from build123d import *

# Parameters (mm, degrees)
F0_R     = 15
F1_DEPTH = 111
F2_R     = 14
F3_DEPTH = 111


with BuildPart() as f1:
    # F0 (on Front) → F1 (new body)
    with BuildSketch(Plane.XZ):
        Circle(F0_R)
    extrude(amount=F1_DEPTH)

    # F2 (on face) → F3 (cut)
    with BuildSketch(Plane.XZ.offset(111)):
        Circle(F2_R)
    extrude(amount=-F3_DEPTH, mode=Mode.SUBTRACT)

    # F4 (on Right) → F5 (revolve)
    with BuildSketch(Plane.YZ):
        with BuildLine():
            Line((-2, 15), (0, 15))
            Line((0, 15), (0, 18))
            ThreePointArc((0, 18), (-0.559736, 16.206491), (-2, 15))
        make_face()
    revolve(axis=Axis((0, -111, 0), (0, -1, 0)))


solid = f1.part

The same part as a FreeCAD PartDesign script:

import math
import FreeCAD as App
import Part
import Sketcher
from FreeCAD import Vector
Q = App.Units.Quantity

doc = App.newDocument("Part")
body = doc.addObject("PartDesign::Body", "Body")

sketch1 = doc.addObject("Sketcher::SketchObject", "Sketch")
body.addObject(sketch1)
sketch1.AttachmentSupport = (doc.XZ_Plane, [""])
sketch1.MapMode = "FlatFace"
sketch1.addGeometry(Part.Circle(Vector(0, 0, 0), Vector(0, 0, 1), 15), False)
sketch1.addConstraint([
    Sketcher.Constraint("Coincident", 0, 3, -1, 1),
    Sketcher.Constraint("Diameter", 0, Q("30 mm")),
])
pad1 = doc.addObject("PartDesign::Pad", "Pad")
body.addObject(pad1)
pad1.Profile = sketch1
pad1.Length = 111

sketch2 = doc.addObject("Sketcher::SketchObject", "Sketch001")
body.addObject(sketch2)
sketch2.AttachmentSupport = (doc.XZ_Plane, [""])
sketch2.MapMode = "FlatFace"
sketch2.AttachmentOffset = App.Placement(Vector(0, 0, 111), App.Rotation())
sketch2.addGeometry(Part.Circle(Vector(0, 0, 0), Vector(0, 0, 1), 14), False)
sketch2.addConstraint([
    Sketcher.Constraint("Coincident", 0, 3, -1, 1),
    Sketcher.Constraint("Diameter", 0, Q("28 mm")),
])
pocket1 = doc.addObject("PartDesign::Pocket", "Pocket")
body.addObject(pocket1)
pocket1.Profile = sketch2
pocket1.Length = 111

sketch3 = doc.addObject("Sketcher::SketchObject", "Sketch002")
body.addObject(sketch3)
sketch3.AttachmentSupport = (doc.YZ_Plane, [""])
sketch3.MapMode = "FlatFace"
sketch3.addGeometry([
    Part.LineSegment(Vector(-2, 15, 0), Vector(0, 15, 0)),
    Part.LineSegment(Vector(0, 15, 0), Vector(0, 18, 0)),
    Part.ArcOfCircle(Part.Circle(Vector(-3.3, 18.1, 0), Vector(0, 0, 1), 3.3), math.radians(-66), math.radians(-1)),
], False)
sketch3.addConstraint([
    Sketcher.Constraint("Coincident", 0, 2, 1, 1),
    Sketcher.Constraint("Coincident", 1, 2, 2, 2),
    Sketcher.Constraint("Coincident", 2, 1, 0, 1),
    Sketcher.Constraint("Horizontal", 0),
    Sketcher.Constraint("Vertical", 1),
    Sketcher.Constraint("PointOnObject", 0, 2, -2),
    Sketcher.Constraint("DistanceX", 0, 1, 0, 2, Q("2 mm")),
    Sketcher.Constraint("DistanceY", 1, 1, 1, 2, Q("3 mm")),
    Sketcher.Constraint("DistanceY", -1, 1, 0, 2, Q("15 mm")),
    Sketcher.Constraint("Radius", 2, Q("3.335637 mm")),
])
revolution = doc.addObject("PartDesign::Revolution", "Revolution")
body.addObject(revolution)
revolution.Profile = sketch3
revolution.ReferenceAxis = (sketch3, ["H_Axis"])
revolution.Angle = 360

doc.recompute()
